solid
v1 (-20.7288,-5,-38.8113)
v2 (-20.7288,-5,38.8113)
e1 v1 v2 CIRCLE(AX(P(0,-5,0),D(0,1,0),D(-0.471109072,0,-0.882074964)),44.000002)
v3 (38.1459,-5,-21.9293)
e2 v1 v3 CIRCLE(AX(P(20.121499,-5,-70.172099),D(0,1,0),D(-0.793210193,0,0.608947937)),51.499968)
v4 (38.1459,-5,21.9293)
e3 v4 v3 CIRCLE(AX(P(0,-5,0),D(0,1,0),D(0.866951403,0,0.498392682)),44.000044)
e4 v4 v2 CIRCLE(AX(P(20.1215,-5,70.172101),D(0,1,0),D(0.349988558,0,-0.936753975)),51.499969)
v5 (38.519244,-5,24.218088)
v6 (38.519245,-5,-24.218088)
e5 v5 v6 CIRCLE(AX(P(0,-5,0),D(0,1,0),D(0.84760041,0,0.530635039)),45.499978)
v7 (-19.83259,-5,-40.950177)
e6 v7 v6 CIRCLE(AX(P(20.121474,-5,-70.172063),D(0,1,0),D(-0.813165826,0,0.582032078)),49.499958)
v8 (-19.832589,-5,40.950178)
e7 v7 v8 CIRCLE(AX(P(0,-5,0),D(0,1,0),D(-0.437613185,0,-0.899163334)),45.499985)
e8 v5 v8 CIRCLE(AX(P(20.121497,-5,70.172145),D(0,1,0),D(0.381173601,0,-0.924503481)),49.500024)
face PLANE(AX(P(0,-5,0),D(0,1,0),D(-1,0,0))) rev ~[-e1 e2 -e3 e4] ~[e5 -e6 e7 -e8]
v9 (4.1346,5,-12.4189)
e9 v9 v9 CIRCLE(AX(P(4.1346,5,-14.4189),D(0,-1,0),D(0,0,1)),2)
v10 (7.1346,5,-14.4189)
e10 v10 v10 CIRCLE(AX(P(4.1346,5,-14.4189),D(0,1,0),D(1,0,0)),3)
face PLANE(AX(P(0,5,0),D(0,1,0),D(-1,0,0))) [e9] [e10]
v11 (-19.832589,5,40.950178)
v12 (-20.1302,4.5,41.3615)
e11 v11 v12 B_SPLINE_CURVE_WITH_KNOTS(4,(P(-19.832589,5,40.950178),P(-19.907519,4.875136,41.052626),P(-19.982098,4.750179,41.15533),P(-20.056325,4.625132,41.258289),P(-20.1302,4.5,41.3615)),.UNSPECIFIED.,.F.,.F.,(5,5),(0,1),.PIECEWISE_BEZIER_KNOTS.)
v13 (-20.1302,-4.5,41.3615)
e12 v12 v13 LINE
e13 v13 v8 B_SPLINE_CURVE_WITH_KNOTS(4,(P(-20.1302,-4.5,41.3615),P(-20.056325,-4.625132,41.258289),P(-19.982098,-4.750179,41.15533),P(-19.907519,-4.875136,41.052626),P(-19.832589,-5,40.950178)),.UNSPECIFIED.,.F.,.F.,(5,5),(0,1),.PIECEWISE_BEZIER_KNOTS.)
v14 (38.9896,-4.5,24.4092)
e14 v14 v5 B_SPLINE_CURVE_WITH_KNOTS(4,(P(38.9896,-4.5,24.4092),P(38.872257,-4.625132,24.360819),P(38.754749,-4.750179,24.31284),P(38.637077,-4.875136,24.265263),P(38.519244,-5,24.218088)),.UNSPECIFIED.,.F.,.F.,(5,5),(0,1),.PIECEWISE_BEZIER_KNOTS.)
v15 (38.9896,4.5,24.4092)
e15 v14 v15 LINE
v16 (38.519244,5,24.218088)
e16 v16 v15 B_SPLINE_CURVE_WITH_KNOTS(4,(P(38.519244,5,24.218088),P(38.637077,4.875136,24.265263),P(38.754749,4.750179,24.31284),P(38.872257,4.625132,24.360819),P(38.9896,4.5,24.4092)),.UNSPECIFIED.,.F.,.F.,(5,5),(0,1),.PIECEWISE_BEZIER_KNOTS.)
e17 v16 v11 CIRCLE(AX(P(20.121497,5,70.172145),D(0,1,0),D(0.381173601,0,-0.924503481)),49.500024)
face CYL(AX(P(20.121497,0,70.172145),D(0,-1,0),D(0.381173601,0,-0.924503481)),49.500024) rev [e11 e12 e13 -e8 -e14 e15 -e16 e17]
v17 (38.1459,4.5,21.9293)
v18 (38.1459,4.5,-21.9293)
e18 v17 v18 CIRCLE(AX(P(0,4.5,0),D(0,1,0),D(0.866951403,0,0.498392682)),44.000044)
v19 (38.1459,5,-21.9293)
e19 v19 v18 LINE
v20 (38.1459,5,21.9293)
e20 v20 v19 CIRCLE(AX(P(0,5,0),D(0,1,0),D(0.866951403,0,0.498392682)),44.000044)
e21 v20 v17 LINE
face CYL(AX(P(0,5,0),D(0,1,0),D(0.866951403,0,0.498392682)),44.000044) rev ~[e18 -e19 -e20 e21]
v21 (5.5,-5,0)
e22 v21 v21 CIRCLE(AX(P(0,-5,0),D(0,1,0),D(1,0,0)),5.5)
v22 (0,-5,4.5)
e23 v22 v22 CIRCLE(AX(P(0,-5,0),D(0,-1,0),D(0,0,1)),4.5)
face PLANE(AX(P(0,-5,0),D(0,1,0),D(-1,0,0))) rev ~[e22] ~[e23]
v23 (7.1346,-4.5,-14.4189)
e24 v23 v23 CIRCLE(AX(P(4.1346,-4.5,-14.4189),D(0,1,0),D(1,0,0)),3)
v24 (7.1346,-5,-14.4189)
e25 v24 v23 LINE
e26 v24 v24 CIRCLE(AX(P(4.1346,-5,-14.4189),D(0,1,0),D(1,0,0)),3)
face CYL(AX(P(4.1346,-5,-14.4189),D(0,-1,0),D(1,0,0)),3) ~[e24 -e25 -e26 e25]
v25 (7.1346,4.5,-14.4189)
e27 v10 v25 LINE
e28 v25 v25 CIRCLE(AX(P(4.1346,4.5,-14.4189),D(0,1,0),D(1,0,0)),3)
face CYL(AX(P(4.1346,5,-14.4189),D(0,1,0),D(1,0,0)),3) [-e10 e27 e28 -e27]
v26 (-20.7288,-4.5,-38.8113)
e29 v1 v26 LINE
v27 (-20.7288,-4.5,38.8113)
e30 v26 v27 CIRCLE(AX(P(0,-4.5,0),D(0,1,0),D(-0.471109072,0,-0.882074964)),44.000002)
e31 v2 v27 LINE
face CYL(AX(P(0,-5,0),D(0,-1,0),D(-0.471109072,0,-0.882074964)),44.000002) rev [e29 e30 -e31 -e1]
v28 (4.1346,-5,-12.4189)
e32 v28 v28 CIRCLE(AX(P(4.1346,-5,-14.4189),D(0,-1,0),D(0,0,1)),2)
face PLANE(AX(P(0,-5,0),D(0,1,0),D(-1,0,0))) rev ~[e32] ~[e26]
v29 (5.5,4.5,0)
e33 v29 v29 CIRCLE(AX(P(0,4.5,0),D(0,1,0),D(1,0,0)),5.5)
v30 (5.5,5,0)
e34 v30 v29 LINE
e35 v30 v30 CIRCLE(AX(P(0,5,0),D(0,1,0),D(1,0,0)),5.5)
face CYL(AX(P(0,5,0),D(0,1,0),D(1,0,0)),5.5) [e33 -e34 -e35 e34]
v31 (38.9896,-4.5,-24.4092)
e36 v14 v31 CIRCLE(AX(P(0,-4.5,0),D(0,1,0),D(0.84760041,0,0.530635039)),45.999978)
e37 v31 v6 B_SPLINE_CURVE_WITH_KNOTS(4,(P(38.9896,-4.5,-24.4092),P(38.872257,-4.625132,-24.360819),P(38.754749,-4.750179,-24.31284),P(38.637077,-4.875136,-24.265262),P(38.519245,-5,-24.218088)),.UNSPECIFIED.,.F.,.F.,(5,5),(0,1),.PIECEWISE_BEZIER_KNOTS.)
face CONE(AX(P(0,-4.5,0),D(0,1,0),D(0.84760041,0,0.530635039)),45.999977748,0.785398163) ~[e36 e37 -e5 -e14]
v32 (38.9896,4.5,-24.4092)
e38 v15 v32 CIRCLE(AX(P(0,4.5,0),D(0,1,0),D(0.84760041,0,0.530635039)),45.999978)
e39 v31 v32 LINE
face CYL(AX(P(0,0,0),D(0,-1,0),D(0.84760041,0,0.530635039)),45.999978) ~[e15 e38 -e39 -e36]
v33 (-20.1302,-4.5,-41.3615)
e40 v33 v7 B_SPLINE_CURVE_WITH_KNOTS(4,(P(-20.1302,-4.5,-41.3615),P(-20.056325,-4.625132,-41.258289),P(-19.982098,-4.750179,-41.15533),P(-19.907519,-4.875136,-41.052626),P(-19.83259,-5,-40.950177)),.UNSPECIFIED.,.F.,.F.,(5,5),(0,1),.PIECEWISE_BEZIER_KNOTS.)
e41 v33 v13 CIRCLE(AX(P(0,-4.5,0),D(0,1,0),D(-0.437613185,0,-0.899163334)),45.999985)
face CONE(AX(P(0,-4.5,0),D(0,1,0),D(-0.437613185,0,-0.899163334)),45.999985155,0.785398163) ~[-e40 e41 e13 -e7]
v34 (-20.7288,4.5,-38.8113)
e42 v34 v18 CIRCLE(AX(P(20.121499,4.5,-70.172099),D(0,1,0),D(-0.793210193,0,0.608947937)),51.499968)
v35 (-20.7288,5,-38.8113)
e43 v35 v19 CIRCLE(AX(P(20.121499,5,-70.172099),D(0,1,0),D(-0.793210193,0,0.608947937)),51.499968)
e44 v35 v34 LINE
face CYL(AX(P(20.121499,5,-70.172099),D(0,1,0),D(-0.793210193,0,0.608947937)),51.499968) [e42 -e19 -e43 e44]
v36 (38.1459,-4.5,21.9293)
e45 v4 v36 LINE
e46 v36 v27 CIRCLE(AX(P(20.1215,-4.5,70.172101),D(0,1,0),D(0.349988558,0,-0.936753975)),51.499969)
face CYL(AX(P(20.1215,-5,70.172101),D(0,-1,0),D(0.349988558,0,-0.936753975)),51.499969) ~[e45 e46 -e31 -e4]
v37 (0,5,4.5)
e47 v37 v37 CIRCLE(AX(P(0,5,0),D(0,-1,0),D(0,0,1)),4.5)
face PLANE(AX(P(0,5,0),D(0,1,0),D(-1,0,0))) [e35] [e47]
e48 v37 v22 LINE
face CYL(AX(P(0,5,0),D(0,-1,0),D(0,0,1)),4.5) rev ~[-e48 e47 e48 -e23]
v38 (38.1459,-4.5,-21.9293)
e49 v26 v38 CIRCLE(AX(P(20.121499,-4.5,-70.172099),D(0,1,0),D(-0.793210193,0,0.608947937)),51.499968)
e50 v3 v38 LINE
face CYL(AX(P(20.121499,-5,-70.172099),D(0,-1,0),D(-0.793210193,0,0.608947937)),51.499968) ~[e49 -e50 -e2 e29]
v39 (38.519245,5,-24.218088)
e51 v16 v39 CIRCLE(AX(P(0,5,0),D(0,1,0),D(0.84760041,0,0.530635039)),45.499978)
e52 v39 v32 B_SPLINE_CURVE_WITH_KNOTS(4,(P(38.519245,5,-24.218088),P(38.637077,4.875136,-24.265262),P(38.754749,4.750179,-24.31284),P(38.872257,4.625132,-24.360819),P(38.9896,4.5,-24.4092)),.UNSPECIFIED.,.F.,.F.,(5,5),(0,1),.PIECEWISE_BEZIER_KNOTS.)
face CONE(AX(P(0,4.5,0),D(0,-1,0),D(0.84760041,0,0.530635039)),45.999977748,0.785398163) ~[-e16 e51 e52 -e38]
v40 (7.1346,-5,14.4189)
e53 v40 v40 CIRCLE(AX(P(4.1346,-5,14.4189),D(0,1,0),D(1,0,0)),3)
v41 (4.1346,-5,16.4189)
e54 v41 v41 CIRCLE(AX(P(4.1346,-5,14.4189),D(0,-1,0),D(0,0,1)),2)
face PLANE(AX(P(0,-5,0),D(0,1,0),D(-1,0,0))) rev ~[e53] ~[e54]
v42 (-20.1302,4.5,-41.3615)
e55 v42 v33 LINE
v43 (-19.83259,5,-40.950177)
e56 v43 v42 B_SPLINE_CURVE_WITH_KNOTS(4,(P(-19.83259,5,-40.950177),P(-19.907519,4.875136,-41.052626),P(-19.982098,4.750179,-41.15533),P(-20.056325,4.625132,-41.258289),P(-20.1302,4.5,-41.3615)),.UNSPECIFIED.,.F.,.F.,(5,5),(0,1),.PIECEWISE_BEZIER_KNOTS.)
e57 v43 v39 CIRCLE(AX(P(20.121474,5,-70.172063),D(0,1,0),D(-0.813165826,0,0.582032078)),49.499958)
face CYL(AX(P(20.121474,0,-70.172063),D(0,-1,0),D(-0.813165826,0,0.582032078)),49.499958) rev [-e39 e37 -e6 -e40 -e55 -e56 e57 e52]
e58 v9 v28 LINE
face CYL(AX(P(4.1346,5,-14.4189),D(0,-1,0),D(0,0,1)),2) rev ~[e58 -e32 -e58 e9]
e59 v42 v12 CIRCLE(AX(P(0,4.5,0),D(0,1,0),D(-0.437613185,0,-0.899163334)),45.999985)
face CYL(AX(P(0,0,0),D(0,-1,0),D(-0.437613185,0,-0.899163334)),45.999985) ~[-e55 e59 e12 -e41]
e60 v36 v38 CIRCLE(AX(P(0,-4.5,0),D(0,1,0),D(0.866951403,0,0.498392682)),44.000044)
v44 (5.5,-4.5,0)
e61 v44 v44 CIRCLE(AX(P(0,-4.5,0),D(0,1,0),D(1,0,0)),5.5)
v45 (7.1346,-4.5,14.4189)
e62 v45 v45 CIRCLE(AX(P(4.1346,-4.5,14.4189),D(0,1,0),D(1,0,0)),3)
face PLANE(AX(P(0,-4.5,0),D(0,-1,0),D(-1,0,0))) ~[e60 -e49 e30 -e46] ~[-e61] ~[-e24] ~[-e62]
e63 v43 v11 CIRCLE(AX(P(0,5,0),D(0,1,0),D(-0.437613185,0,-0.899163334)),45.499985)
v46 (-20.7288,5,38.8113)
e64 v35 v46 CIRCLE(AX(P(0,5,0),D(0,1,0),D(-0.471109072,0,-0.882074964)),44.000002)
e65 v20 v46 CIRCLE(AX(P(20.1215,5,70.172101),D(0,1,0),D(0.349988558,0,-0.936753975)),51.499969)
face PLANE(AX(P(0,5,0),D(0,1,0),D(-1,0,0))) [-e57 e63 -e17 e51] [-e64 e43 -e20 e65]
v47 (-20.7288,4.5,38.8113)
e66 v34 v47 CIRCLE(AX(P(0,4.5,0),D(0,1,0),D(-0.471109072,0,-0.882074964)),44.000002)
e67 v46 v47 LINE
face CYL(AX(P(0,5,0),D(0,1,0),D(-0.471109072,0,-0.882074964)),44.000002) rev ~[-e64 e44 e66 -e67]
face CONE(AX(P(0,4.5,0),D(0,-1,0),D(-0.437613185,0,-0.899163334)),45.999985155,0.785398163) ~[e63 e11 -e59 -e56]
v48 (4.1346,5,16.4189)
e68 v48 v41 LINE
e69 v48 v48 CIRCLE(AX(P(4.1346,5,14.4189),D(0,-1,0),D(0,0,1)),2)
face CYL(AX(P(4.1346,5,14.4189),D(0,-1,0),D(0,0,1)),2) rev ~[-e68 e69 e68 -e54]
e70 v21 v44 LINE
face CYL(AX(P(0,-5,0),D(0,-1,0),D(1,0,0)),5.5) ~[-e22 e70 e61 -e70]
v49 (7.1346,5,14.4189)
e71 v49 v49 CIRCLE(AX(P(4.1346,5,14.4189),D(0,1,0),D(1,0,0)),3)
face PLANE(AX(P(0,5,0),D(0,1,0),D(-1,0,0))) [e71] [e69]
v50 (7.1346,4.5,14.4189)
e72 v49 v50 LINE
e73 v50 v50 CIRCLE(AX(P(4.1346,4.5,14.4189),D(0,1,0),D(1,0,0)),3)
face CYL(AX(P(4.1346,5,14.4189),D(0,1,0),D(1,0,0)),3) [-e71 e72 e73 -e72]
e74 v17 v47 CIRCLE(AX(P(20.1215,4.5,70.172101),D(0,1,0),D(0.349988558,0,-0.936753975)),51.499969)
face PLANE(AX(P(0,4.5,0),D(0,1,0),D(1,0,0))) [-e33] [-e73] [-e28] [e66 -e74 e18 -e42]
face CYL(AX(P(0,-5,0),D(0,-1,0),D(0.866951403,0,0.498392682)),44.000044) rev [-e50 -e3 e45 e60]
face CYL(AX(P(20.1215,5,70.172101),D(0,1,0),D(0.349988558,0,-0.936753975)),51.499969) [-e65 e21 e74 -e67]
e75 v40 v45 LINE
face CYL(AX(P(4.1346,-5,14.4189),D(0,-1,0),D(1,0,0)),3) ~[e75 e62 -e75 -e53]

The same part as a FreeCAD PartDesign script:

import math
import FreeCAD as App
import Part
import Sketcher

V = App.Vector
Q = App.Units.Quantity


def edges_at(feature, points):
    """Names of the edges that pass closest to the given points."""
    edges = feature.Shape.Edges
    near = lambda p: min(range(len(edges)), key=lambda i: edges[i].distToShape(Part.Vertex(*p))[0])
    return sorted({f"Edge{near(p) + 1}" for p in points})

doc = App.newDocument("Part")
body = doc.addObject("PartDesign::Body", "Body")

sketch1 = doc.addObject("Sketcher::SketchObject", "Sketch")
body.addObject(sketch1)
sketch1.AttachmentSupport = (doc.XZ_Plane, [""])
sketch1.MapMode = "FlatFace"
sketch1.addGeometry([
    Part.ArcOfCircle(Part.Circle(V(20, 70, 0), V(0, 0, 1), 49), math.radians(-144), math.radians(-68)),
    Part.ArcOfCircle(Part.Circle(V(0, 0, 0), V(0, 0, 1), 46), math.radians(-32), math.radians(32)),
    Part.ArcOfCircle(Part.Circle(V(20, -70, 0), V(0, 0, 1), 50), math.radians(68), math.radians(144)),
    Part.ArcOfCircle(Part.Circle(V(0, 0, 0), V(0, 0, 1), 46), math.radians(116), math.radians(244)),
], False)
sketch1.addConstraint([
    Sketcher.Constraint("Coincident", 0, 2, 1, 2),
    Sketcher.Constraint("Coincident", 1, 1, 2, 1),
    Sketcher.Constraint("Coincident", 2, 2, 3, 2),
    Sketcher.Constraint("Coincident", 3, 1, 0, 1),
    Sketcher.Constraint("Coincident", 1, 3, -1, 1),
    Sketcher.Constraint("Coincident", 3, 3, -1, 1),
    Sketcher.Constraint("Equal", 0, 2),
    Sketcher.Constraint("Equal", 1, 3),
    Sketcher.Constraint("Symmetric", 0, 3, 2, 3, -1),
    Sketcher.Constraint("Radius", 1, Q("46 mm")),
    Sketcher.Constraint("Radius", 0, Q("49.5 mm")),
    Sketcher.Constraint("DistanceY", -1, 1, 0, 3, Q("70.172 mm")),
    Sketcher.Constraint("DistanceX", 0, 3, 0, 2, Q("18.868 mm")),
])
pad1 = doc.addObject("PartDesign::Pad", "Pad")
body.addObject(pad1)
pad1.Profile = sketch1
pad1.Length = 10
pad1.Midplane = True

sketch2 = doc.addObject("Sketcher::SketchObject", "Sketch001")
body.addObject(sketch2)
sketch2.AttachmentSupport = (doc.XZ_Plane, [""])
sketch2.MapMode = "FlatFace"
sketch2.AttachmentOffset = App.Placement(V(0, 0, -5), App.Rotation())
sketch2.addGeometry([
    Part.Circle(V(4.1, 14.4, 0), V(0, 0, 1), 2),
    Part.Circle(V(4.1, -14.4, 0), V(0, 0, 1), 2),
], False)
sketch2.addConstraint([
    Sketcher.Constraint("Equal", 0, 1),
    Sketcher.Constraint("Symmetric", 0, 3, 1, 3, -1),
    Sketcher.Constraint("Diameter", 0, Q("4 mm")),
    Sketcher.Constraint("DistanceY", -1, 1, 0, 3, Q("14.419 mm")),
    Sketcher.Constraint("DistanceX", -1, 1, 0, 3, Q("4.1346 mm")),
])
doc.recompute()
hole = doc.addObject("PartDesign::Hole", "Hole")
body.addObject(hole)
hole.Profile = sketch2
hole.ThreadType = "None"
hole.Diameter = 4
hole.DepthType = "ThroughAll"
hole.Reversed = True

sketch3 = doc.addObject("Sketcher::SketchObject", "Sketch002")
body.addObject(sketch3)
sketch3.AttachmentSupport = (doc.XZ_Plane, [""])
sketch3.MapMode = "FlatFace"
sketch3.AttachmentOffset = App.Placement(V(0, 0, -5), App.Rotation())
sketch3.addGeometry([
    Part.ArcOfCircle(Part.Circle(V(20.1, -70.2, 0), V(0, 0, 1), 51.5), math.radians(70), math.radians(142)),
    Part.ArcOfCircle(Part.Circle(V(0, 0, 0), V(0, 0, 1), 44), math.radians(118), math.radians(242)),
    Part.ArcOfCircle(Part.Circle(V(20.1, 70.2, 0), V(0, 0, 1), 51.5), math.radians(-142), math.radians(-70)),
    Part.ArcOfCircle(Part.Circle(V(0, 0, 0), V(0, 0, 1), 44), math.radians(-30), math.radians(30)),
    Part.Circle(V(4.1, 14.4, 0), V(0, 0, 1), 3),
    Part.Circle(V(0, 0, 0), V(0, 0, 1), 5.5),
    Part.Circle(V(4.1, -14.4, 0), V(0, 0, 1), 3),
], False)
sketch3.addConstraint([
    Sketcher.Constraint("Coincident", 0, 2, 1, 2),
    Sketcher.Constraint("Coincident", 1, 1, 2, 1),
    Sketcher.Constraint("Coincident", 2, 2, 3, 2),
    Sketcher.Constraint("Coincident", 3, 1, 0, 1),
    Sketcher.Constraint("Coincident", 1, 3, -1, 1),
    Sketcher.Constraint("Coincident", 3, 3, -1, 1),
    Sketcher.Constraint("Coincident", 5, 3, -1, 1),
    Sketcher.Constraint("Equal", 0, 2),
    Sketcher.Constraint("Equal", 1, 3),
    Sketcher.Constraint("Equal", 4, 6),
    Sketcher.Constraint("Symmetric", 0, 3, 2, 3, -1),
    Sketcher.Constraint("Symmetric", 4, 3, 6, 3, -1),
    Sketcher.Constraint("Diameter", 4, Q("6 mm")),
    Sketcher.Constraint("Diameter", 5, Q("11 mm")),
    Sketcher.Constraint("Radius", 1, Q("44 mm")),
    Sketcher.Constraint("Radius", 0, Q("51.5 mm")),
    Sketcher.Constraint("DistanceY", 0, 3, -1, 1, Q("70.172 mm")),
    Sketcher.Constraint("DistanceY", -1, 1, 4, 3, Q("14.419 mm")),
    Sketcher.Constraint("DistanceX", -1, 1, 2, 2, Q("38.146 mm")),
    Sketcher.Constraint("DistanceX", 4, 3, 2, 3, Q("15.987 mm")),
])
pocket1 = doc.addObject("PartDesign::Pocket", "Pocket")
body.addObject(pocket1)
pocket1.Profile = sketch3
pocket1.Length = 0.5
pocket1.Reversed = True

sketch4 = doc.addObject("Sketcher::SketchObject", "Sketch003")
body.addObject(sketch4)
sketch4.AttachmentSupport = (doc.XZ_Plane, [""])
sketch4.MapMode = "FlatFace"
sketch4.AttachmentOffset = App.Placement(V(0, 0, -5), App.Rotation())
sketch4.addGeometry(Part.Circle(V(0, 0, 0), V(0, 0, 1), 4.5), False)
sketch4.addConstraint([
    Sketcher.Constraint("Coincident", 0, 3, -1, 1),
    Sketcher.Constraint("Diameter", 0, Q("9 mm")),
])
doc.recompute()
hole2 = doc.addObject("PartDesign::Hole", "Hole001")
body.addObject(hole2)
hole2.Profile = sketch4
hole2.ThreadType = "None"
hole2.Diameter = 9
hole2.DepthType = "ThroughAll"
hole2.Reversed = True
doc.recompute()

chamfer = doc.addObject("PartDesign::Chamfer", "Chamfer")
body.addObject(chamfer)
chamfer.Base = (hole2, edges_at(hole2, [(-46, 5, 0), (46, 5, 0)]))
chamfer.Size = 0.5
doc.recompute()

mirrored = doc.addObject("PartDesign::Mirrored", "Mirrored")
body.addObject(mirrored)
mirrored.Originals = [pocket1]
mirrored.MirrorPlane = (doc.XZ_Plane, [""])
body.Tip = mirrored
doc.recompute()

chamfer2 = doc.addObject("PartDesign::Chamfer", "Chamfer001")
body.addObject(chamfer2)
chamfer2.Base = (mirrored, edges_at(mirrored, [(46, -5, 0), (-46, -5, 0)]))
chamfer2.Size = 0.5

doc.recompute()
